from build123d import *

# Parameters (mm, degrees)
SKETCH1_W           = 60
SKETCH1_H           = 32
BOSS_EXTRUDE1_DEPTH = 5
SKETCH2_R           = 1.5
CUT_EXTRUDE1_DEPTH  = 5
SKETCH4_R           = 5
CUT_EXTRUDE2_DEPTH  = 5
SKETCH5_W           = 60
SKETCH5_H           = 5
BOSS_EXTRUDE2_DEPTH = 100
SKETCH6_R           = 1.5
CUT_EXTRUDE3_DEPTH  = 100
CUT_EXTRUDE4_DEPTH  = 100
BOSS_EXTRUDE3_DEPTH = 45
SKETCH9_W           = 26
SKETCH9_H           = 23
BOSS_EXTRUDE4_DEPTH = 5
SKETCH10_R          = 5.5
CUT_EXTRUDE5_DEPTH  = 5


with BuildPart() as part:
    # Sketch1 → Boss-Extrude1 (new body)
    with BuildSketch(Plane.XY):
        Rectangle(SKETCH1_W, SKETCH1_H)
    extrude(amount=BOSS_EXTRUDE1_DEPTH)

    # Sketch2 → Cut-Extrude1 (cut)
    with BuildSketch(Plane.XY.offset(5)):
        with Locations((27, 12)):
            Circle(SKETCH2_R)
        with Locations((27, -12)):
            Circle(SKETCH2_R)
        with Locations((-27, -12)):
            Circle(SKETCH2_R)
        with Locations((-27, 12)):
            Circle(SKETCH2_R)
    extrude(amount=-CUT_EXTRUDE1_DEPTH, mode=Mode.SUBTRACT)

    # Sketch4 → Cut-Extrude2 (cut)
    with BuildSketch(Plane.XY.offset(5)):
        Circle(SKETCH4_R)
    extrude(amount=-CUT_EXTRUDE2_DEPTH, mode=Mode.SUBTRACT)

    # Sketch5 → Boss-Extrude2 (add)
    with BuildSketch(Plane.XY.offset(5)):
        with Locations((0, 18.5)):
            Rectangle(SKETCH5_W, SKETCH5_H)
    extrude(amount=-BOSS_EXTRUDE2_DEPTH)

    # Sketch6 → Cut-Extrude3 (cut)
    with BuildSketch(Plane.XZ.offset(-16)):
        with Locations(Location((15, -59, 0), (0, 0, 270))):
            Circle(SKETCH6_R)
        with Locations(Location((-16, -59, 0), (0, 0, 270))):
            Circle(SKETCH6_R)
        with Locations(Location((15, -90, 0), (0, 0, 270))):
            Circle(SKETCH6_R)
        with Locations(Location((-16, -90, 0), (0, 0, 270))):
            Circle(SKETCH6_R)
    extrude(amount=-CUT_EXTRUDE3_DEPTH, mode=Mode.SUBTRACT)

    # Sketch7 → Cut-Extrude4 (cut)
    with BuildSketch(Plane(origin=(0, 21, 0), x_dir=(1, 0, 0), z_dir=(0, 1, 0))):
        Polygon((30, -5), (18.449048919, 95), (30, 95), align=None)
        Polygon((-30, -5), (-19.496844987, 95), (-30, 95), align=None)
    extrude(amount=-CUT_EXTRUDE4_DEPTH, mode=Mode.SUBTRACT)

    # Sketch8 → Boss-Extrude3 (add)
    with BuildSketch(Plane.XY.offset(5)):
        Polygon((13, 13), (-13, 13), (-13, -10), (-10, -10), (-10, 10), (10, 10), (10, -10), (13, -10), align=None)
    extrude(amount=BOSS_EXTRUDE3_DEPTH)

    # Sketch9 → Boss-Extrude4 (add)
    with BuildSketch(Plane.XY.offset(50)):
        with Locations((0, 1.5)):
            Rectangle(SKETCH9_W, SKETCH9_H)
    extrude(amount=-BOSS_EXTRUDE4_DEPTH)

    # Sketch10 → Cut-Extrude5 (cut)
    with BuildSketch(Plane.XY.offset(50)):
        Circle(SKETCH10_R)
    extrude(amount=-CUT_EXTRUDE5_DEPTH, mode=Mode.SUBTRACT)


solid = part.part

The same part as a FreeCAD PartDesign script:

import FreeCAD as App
import Part
import Sketcher
from FreeCAD import Vector
Q = App.Units.Quantity


def add_polygon(sketch, points):
    """Adds a closed chain of lines whose ends are joined by coincident constraints."""
    first, n = sketch.GeometryCount, len(points)
    for a, b in zip(points, points[1:] + points[:1]):
        sketch.addGeometry(Part.LineSegment(App.Vector(*a, 0), App.Vector(*b, 0)), False)
    for i in range(n):
        sketch.addConstraint(Sketcher.Constraint("Coincident", first + i, 2, first + (i + 1) % n, 1))

doc = App.newDocument("Part")
body = doc.addObject("PartDesign::Body", "Body")

sketch1 = doc.addObject("Sketcher::SketchObject", "Sketch")
body.addObject(sketch1)
sketch1.AttachmentSupport = (doc.XY_Plane, [""])
sketch1.MapMode = "FlatFace"
add_polygon(sketch1, [(-30, 16), (-30, -16), (30, -16), (30, 16)])
sketch1.addConstraint([
    Sketcher.Constraint("Vertical", 0),
    Sketcher.Constraint("Horizontal", 1),
    Sketcher.Constraint("Vertical", 2),
    Sketcher.Constraint("Horizontal", 3),
    Sketcher.Constraint("Symmetric", 0, 2, 2, 2, -1, 1),
    Sketcher.Constraint("DistanceX", 1, 1, 1, 2, Q("60 mm")),
    Sketcher.Constraint("DistanceY", 0, 2, 0, 1, Q("32 mm")),
])
pad1 = doc.addObject("PartDesign::Pad", "Pad")
body.addObject(pad1)
pad1.Profile = sketch1
pad1.Length = 5

sketch2 = doc.addObject("Sketcher::SketchObject", "Sketch001")
body.addObject(sketch2)
sketch2.AttachmentSupport = (doc.XY_Plane, [""])
sketch2.MapMode = "FlatFace"
sketch2.AttachmentOffset = App.Placement(Vector(0, 0, 5), App.Rotation())
sketch2.addGeometry([
    Part.Circle(Vector(27, 12, 0), Vector(0, 0, 1), 1.5),
    Part.Circle(Vector(27, -12, 0), Vector(0, 0, 1), 1.5),
    Part.Circle(Vector(-27, -12, 0), Vector(0, 0, 1), 1.5),
    Part.Circle(Vector(-27, 12, 0), Vector(0, 0, 1), 1.5),
], False)
sketch2.addConstraint([
    Sketcher.Constraint("Equal", 0, 1),
    Sketcher.Constraint("Equal", 1, 2),
    Sketcher.Constraint("Equal", 2, 3),
    Sketcher.Constraint("Symmetric", 0, 3, 2, 3, -1, 1),
    Sketcher.Constraint("Symmetric", 1, 3, 3, 3, -1, 1),
    Sketcher.Constraint("Symmetric", 1, 3, 2, 3, -2),
    Sketcher.Constraint("Diameter", 0, Q("3 mm")),
    Sketcher.Constraint("DistanceX", -1, 1, 0, 3, Q("27 mm")),
    Sketcher.Constraint("DistanceY", -1, 1, 0, 3, Q("12 mm")),
])
pocket1 = doc.addObject("PartDesign::Pocket", "Pocket")
body.addObject(pocket1)
pocket1.Profile = sketch2
pocket1.Length = 5

sketch3 = doc.addObject("Sketcher::SketchObject", "Sketch002")
body.addObject(sketch3)
sketch3.AttachmentSupport = (doc.XY_Plane, [""])
sketch3.MapMode = "FlatFace"
sketch3.AttachmentOffset = App.Placement(Vector(0, 0, 5), App.Rotation())
sketch3.addGeometry(Part.Circle(Vector(0, 0, 0), Vector(0, 0, 1), 5), False)
sketch3.addConstraint([
    Sketcher.Constraint("Coincident", 0, 3, -1, 1),
    Sketcher.Constraint("Diameter", 0, Q("10 mm")),
])
pocket2 = doc.addObject("PartDesign::Pocket", "Pocket001")
body.addObject(pocket2)
pocket2.Profile = sketch3
pocket2.Length = 5

sketch4 = doc.addObject("Sketcher::SketchObject", "Sketch003")
body.addObject(sketch4)
sketch4.AttachmentSupport = (doc.XY_Plane, [""])
sketch4.MapMode = "FlatFace"
sketch4.AttachmentOffset = App.Placement(Vector(0, 0, 5), App.Rotation())
add_polygon(sketch4, [(-30, 21), (-30, 16), (30, 16), (30, 21)])
sketch4.addConstraint([
    Sketcher.Constraint("Vertical", 0),
    Sketcher.Constraint("Horizontal", 1),
    Sketcher.Constraint("Vertical", 2),
    Sketcher.Constraint("Horizontal", 3),
    Sketcher.Constraint("DistanceX", 1, 1, 1, 2, Q("60 mm")),
    Sketcher.Constraint("DistanceY", 0, 2, 0, 1, Q("5 mm")),
    Sketcher.Constraint("DistanceX", 0, 2, -1, 1, Q("30 mm")),
    Sketcher.Constraint("DistanceY", -1, 1, 0, 2, Q("16 mm")),
])
pad2 = doc.addObject("PartDesign::Pad", "Pad001")
body.addObject(pad2)
pad2.Profile = sketch4
pad2.Length = 100
pad2.Reversed = True

sketch5 = doc.addObject("Sketcher::SketchObject", "Sketch004")
body.addObject(sketch5)
sketch5.AttachmentSupport = (doc.XZ_Plane, [""])
sketch5.MapMode = "FlatFace"
sketch5.AttachmentOffset = App.Placement(Vector(0, 0, -16), App.Rotation())
sketch5.addGeometry([
    Part.Circle(Vector(15, -59, 0), Vector(0, 0, 1), 1.5),
    Part.Circle(Vector(-16, -59, 0), Vector(0, 0, 1), 1.5),
    Part.Circle(Vector(15, -90, 0), Vector(0, 0, 1), 1.5),
    Part.Circle(Vector(-16, -90, 0), Vector(0, 0, 1), 1.5),
], False)
sketch5.addConstraint([
    Sketcher.Constraint("Equal", 0, 1),
    Sketcher.Constraint("Equal", 1, 2),
    Sketcher.Constraint("Equal", 2, 3),
    Sketcher.Constraint("Horizontal", 0, 3, 1, 3),
    Sketcher.Constraint("Horizontal", 2, 3, 3, 3),
    Sketcher.Constraint("Vertical", 0, 3, 2, 3),
    Sketcher.Constraint("Vertical", 1, 3, 3, 3),
    Sketcher.Constraint("Diameter", 0, Q("3 mm")),
    Sketcher.Constraint("DistanceX", -1, 1, 0, 3, Q("15 mm")),
    Sketcher.Constraint("DistanceY", 0, 3, -1, 1, Q("59 mm")),
    Sketcher.Constraint("DistanceX", 1, 3, -1, 1, Q("16 mm")),
    Sketcher.Constraint("DistanceY", 2, 3, -1, 1, Q("90 mm")),
])
pocket3 = doc.addObject("PartDesign::Pocket", "Pocket002")
body.addObject(pocket3)
pocket3.Profile = sketch5
pocket3.Length = 100

sketch6 = doc.addObject("Sketcher::SketchObject", "Sketch005")
body.addObject(sketch6)
sketch6.AttachmentSupport = (doc.XZ_Plane, [""])
sketch6.MapMode = "FlatFace"
sketch6.AttachmentOffset = App.Placement(Vector(0, 0, -21), App.Rotation())
add_polygon(sketch6, [(18.449049, -95), (30, 5), (30, -95)])
add_polygon(sketch6, [(-30, 5), (-19.496845, -95), (-30, -95)])
sketch6.addConstraint([
    Sketcher.Constraint("Vertical", 1),
    Sketcher.Constraint("Horizontal", 2),
    Sketcher.Constraint("Horizontal", 4),
    Sketcher.Constraint("Vertical", 5),
    Sketcher.Constraint("Symmetric", 1, 2, 4, 2, -2),
    Sketcher.Constraint("Horizontal", 0, 2, 5, 2),
    Sketcher.Constraint("DistanceY", 1, 2, 1, 1, Q("100 mm")),
    Sketcher.Constraint("DistanceX", -1, 1, 0, 2, Q("30 mm")),
    Sketcher.Constraint("DistanceY", -1, 1, 0, 2, Q("5 mm")),
    Sketcher.Constraint("DistanceX", 2, 2, 2, 1, Q("11.550951 mm")),
    Sketcher.Constraint("Distance", 3, Q("100.550068 mm")),
])
pocket4 = doc.addObject("PartDesign::Pocket", "Pocket003")
body.addObject(pocket4)
pocket4.Profile = sketch6
pocket4.Length = 100
pocket4.Reversed = True

sketch7 = doc.addObject("Sketcher::SketchObject", "Sketch006")
body.addObject(sketch7)
sketch7.AttachmentSupport = (doc.XY_Plane, [""])
sketch7.MapMode = "FlatFace"
sketch7.AttachmentOffset = App.Placement(Vector(0, 0, 5), App.Rotation())
add_polygon(sketch7, [(13, 13), (-13, 13), (-13, -10), (-10, -10), (-10, 10), (10, 10), (10, -10), (13, -10)])
sketch7.addConstraint([
    Sketcher.Constraint("Horizontal", 0),
    Sketcher.Constraint("Vertical", 1),
    Sketcher.Constraint("Horizontal", 2),
    Sketcher.Constraint("Vertical", 3),
    Sketcher.Constraint("Horizontal", 4),
    Sketcher.Constraint("Vertical", 5),
    Sketcher.Constraint("Horizontal", 6),
    Sketcher.Constraint("Vertical", 7),
    Sketcher.Constraint("Symmetric", 2, 2, 4, 2, -1, 1),
    Sketcher.Constraint("Symmetric", 1, 2, 6, 2, -2),
    Sketcher.Constraint("Equal", 4, 3),
    Sketcher.Constraint("DistanceX", 0, 2, 0, 1, Q("26 mm")),
    Sketcher.Constraint("DistanceX", 2, 1, 2, 2, Q("3 mm")),
    Sketcher.Constraint("DistanceY", 1, 2, 1, 1, Q("23 mm")),
])
pad3 = doc.addObject("PartDesign::Pad", "Pad002")
body.addObject(pad3)
pad3.Profile = sketch7
pad3.Length = 45

sketch8 = doc.addObject("Sketcher::SketchObject", "Sketch007")
body.addObject(sketch8)
sketch8.AttachmentSupport = (doc.XY_Plane, [""])
sketch8.MapMode = "FlatFace"
sketch8.AttachmentOffset = App.Placement(Vector(0, 0, 50), App.Rotation())
add_polygon(sketch8, [(-13, 13), (-13, -10), (13, -10), (13, 13)])
sketch8.addConstraint([
    Sketcher.Constraint("Vertical", 0),
    Sketcher.Constraint("Horizontal", 1),
    Sketcher.Constraint("Vertical", 2),
    Sketcher.Constraint("Horizontal", 3),
    Sketcher.Constraint("DistanceX", 1, 1, 1, 2, Q("26 mm")),
    Sketcher.Constraint("DistanceY", 0, 2, 0, 1, Q("23 mm")),
    Sketcher.Constraint("DistanceX", 0, 2, -1, 1, Q("13 mm")),
    Sketcher.Constraint("DistanceY", 0, 2, -1, 1, Q("10 mm")),
])
pad4 = doc.addObject("PartDesign::Pad", "Pad003")
body.addObject(pad4)
pad4.Profile = sketch8
pad4.Length = 5
pad4.Reversed = True

sketch9 = doc.addObject("Sketcher::SketchObject", "Sketch008")
body.addObject(sketch9)
sketch9.AttachmentSupport = (doc.XY_Plane, [""])
sketch9.MapMode = "FlatFace"
sketch9.AttachmentOffset = App.Placement(Vector(0, 0, 50), App.Rotation())
sketch9.addGeometry(Part.Circle(Vector(0, 0, 0), Vector(0, 0, 1), 5.5), False)
sketch9.addConstraint([
    Sketcher.Constraint("Coincident", 0, 3, -1, 1),
    Sketcher.Constraint("Diameter", 0, Q("11 mm")),
])
pocket5 = doc.addObject("PartDesign::Pocket", "Pocket004")
body.addObject(pocket5)
pocket5.Profile = sketch9
pocket5.Length = 5

doc.recompute()
